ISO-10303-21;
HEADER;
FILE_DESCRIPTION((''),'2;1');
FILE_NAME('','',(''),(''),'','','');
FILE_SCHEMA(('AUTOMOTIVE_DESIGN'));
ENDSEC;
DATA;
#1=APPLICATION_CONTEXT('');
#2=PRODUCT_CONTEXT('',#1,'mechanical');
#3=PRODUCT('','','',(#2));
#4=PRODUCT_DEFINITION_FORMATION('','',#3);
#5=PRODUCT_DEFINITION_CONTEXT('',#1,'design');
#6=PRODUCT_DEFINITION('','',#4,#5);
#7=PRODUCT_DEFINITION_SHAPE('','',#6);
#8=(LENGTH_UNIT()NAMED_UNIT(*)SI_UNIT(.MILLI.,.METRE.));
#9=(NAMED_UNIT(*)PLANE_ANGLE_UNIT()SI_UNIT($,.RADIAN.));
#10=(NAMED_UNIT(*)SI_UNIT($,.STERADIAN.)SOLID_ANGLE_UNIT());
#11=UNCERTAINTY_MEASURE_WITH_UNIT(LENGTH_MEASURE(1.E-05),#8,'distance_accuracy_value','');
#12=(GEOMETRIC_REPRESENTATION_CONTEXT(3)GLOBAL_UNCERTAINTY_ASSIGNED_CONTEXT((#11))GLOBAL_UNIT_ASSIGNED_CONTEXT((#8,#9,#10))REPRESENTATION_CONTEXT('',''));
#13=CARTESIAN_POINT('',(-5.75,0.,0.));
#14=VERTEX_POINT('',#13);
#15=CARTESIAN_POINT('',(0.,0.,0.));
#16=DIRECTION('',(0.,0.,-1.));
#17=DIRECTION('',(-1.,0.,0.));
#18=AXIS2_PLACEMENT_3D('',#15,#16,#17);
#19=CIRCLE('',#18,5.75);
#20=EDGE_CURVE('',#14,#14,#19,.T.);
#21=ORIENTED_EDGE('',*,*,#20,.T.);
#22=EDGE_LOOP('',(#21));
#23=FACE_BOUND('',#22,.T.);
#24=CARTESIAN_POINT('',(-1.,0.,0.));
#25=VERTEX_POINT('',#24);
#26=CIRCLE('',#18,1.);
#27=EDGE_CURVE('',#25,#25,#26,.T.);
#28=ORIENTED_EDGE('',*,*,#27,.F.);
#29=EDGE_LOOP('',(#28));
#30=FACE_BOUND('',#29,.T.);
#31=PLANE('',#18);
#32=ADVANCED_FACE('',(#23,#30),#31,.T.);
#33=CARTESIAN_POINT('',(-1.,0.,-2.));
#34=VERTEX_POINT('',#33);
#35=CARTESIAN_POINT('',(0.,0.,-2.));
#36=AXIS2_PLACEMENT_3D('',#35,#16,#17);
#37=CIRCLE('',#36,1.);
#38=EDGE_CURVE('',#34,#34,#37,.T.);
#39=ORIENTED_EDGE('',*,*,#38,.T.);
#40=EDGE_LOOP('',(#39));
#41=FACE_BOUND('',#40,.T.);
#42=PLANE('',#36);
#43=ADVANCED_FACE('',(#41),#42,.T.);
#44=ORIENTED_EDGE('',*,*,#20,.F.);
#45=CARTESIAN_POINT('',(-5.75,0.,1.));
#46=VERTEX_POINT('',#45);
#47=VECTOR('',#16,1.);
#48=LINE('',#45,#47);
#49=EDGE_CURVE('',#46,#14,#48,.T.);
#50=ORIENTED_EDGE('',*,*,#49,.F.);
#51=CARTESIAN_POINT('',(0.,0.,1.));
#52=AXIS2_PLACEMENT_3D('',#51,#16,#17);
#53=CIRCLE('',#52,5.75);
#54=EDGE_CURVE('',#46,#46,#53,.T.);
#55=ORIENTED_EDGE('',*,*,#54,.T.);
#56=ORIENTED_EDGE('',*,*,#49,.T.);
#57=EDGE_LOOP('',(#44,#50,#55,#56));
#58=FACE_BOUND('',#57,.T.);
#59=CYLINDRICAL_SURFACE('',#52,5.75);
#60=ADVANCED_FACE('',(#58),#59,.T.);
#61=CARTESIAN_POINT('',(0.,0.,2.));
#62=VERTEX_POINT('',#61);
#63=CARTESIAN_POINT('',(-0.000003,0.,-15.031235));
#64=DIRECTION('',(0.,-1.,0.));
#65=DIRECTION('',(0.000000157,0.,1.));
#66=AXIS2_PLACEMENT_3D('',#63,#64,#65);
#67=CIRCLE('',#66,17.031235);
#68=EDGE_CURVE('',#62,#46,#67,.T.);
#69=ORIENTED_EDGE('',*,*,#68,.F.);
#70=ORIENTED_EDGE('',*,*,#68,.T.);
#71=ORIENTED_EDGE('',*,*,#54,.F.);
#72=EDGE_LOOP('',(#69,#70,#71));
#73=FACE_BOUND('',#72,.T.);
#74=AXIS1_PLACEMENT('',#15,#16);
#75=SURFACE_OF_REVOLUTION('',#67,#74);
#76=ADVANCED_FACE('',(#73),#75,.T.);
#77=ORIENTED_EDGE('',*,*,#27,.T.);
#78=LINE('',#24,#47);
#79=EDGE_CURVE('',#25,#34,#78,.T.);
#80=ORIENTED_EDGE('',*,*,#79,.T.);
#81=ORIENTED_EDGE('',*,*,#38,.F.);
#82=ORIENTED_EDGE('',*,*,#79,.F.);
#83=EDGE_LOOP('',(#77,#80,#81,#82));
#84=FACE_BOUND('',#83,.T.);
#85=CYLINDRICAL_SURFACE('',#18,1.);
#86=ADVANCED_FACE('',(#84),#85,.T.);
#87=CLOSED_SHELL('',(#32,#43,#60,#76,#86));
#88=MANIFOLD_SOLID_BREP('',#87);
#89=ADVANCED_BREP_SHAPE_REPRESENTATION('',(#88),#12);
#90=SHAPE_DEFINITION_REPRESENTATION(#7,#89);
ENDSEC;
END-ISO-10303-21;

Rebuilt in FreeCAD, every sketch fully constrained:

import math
import FreeCAD as App
import Part
import Sketcher

V = App.Vector

doc = App.newDocument("Part")
body = doc.addObject("PartDesign::Body", "Body")

# Sketch on XZ plane
sketch1 = body.newObject("Sketcher::SketchObject", "Sketch")
sketch1.AttachmentSupport = (doc.getObject("XZ_Plane"), [""])
sketch1.MapMode = "FlatFace"
sketch1.addGeometry(Part.ArcOfCircle(Part.Circle(V(-0.000003, -15.031235, 0), V(0, 0, 1), 17.031235), math.radians(89.999991), math.radians(109.731623)), False)
sketch1.addGeometry(Part.LineSegment(V(-5.75, 1, 0), V(-5.75, 0, 0)), False)
sketch1.addGeometry(Part.LineSegment(V(-5.75, 0, 0), V(-1, 0, 0)), False)
sketch1.addGeometry(Part.LineSegment(V(-1, 0, 0), V(-1, -2, 0)), False)
sketch1.addGeometry(Part.LineSegment(V(-1, -2, 0), V(0, -2, 0)), False)
sketch1.addGeometry(Part.LineSegment(V(0, -2, 0), V(0, 2, 0)), False)
sketch1.addConstraint(Sketcher.Constraint("Coincident", 0, 2, 1, 1))
sketch1.addConstraint(Sketcher.Constraint("Coincident", 1, 2, 2, 1))
sketch1.addConstraint(Sketcher.Constraint("Coincident", 2, 2, 3, 1))
sketch1.addConstraint(Sketcher.Constraint("Coincident", 3, 2, 4, 1))
sketch1.addConstraint(Sketcher.Constraint("Coincident", 4, 2, 5, 1))
sketch1.addConstraint(Sketcher.Constraint("Coincident", 5, 2, 0, 1))
sketch1.addConstraint(Sketcher.Constraint("Vertical", 1))
sketch1.addConstraint(Sketcher.Constraint("Horizontal", 2))
sketch1.addConstraint(Sketcher.Constraint("Vertical", 3))
sketch1.addConstraint(Sketcher.Constraint("Horizontal", 4))
sketch1.addConstraint(Sketcher.Constraint("Vertical", 5))
sketch1.addConstraint(Sketcher.Constraint("Symmetric", 4, 2, 5, 2, -1, 1))
sketch1.addConstraint(Sketcher.Constraint("PointOnObject", 1, 2, -1))
sketch1.addConstraint(Sketcher.Constraint("Equal", 4, 1))
sketch1.addConstraint(Sketcher.Constraint("DistanceX", 4, 1, 4, 2, 1.0))
sketch1.addConstraint(Sketcher.Constraint("DistanceY", 3, 2, 3, 1, 2.0))
sketch1.addConstraint(Sketcher.Constraint("DistanceX", 2, 1, 2, 2, 4.75))
sketch1.addConstraint(Sketcher.Constraint("Radius", 0, 17.031235))
revolution = body.newObject("PartDesign::Revolution", "Revolution")
revolution.Profile = sketch1
revolution.ReferenceAxis = (sketch1, ["V_Axis"])
revolution.Angle = 360

doc.recompute()
